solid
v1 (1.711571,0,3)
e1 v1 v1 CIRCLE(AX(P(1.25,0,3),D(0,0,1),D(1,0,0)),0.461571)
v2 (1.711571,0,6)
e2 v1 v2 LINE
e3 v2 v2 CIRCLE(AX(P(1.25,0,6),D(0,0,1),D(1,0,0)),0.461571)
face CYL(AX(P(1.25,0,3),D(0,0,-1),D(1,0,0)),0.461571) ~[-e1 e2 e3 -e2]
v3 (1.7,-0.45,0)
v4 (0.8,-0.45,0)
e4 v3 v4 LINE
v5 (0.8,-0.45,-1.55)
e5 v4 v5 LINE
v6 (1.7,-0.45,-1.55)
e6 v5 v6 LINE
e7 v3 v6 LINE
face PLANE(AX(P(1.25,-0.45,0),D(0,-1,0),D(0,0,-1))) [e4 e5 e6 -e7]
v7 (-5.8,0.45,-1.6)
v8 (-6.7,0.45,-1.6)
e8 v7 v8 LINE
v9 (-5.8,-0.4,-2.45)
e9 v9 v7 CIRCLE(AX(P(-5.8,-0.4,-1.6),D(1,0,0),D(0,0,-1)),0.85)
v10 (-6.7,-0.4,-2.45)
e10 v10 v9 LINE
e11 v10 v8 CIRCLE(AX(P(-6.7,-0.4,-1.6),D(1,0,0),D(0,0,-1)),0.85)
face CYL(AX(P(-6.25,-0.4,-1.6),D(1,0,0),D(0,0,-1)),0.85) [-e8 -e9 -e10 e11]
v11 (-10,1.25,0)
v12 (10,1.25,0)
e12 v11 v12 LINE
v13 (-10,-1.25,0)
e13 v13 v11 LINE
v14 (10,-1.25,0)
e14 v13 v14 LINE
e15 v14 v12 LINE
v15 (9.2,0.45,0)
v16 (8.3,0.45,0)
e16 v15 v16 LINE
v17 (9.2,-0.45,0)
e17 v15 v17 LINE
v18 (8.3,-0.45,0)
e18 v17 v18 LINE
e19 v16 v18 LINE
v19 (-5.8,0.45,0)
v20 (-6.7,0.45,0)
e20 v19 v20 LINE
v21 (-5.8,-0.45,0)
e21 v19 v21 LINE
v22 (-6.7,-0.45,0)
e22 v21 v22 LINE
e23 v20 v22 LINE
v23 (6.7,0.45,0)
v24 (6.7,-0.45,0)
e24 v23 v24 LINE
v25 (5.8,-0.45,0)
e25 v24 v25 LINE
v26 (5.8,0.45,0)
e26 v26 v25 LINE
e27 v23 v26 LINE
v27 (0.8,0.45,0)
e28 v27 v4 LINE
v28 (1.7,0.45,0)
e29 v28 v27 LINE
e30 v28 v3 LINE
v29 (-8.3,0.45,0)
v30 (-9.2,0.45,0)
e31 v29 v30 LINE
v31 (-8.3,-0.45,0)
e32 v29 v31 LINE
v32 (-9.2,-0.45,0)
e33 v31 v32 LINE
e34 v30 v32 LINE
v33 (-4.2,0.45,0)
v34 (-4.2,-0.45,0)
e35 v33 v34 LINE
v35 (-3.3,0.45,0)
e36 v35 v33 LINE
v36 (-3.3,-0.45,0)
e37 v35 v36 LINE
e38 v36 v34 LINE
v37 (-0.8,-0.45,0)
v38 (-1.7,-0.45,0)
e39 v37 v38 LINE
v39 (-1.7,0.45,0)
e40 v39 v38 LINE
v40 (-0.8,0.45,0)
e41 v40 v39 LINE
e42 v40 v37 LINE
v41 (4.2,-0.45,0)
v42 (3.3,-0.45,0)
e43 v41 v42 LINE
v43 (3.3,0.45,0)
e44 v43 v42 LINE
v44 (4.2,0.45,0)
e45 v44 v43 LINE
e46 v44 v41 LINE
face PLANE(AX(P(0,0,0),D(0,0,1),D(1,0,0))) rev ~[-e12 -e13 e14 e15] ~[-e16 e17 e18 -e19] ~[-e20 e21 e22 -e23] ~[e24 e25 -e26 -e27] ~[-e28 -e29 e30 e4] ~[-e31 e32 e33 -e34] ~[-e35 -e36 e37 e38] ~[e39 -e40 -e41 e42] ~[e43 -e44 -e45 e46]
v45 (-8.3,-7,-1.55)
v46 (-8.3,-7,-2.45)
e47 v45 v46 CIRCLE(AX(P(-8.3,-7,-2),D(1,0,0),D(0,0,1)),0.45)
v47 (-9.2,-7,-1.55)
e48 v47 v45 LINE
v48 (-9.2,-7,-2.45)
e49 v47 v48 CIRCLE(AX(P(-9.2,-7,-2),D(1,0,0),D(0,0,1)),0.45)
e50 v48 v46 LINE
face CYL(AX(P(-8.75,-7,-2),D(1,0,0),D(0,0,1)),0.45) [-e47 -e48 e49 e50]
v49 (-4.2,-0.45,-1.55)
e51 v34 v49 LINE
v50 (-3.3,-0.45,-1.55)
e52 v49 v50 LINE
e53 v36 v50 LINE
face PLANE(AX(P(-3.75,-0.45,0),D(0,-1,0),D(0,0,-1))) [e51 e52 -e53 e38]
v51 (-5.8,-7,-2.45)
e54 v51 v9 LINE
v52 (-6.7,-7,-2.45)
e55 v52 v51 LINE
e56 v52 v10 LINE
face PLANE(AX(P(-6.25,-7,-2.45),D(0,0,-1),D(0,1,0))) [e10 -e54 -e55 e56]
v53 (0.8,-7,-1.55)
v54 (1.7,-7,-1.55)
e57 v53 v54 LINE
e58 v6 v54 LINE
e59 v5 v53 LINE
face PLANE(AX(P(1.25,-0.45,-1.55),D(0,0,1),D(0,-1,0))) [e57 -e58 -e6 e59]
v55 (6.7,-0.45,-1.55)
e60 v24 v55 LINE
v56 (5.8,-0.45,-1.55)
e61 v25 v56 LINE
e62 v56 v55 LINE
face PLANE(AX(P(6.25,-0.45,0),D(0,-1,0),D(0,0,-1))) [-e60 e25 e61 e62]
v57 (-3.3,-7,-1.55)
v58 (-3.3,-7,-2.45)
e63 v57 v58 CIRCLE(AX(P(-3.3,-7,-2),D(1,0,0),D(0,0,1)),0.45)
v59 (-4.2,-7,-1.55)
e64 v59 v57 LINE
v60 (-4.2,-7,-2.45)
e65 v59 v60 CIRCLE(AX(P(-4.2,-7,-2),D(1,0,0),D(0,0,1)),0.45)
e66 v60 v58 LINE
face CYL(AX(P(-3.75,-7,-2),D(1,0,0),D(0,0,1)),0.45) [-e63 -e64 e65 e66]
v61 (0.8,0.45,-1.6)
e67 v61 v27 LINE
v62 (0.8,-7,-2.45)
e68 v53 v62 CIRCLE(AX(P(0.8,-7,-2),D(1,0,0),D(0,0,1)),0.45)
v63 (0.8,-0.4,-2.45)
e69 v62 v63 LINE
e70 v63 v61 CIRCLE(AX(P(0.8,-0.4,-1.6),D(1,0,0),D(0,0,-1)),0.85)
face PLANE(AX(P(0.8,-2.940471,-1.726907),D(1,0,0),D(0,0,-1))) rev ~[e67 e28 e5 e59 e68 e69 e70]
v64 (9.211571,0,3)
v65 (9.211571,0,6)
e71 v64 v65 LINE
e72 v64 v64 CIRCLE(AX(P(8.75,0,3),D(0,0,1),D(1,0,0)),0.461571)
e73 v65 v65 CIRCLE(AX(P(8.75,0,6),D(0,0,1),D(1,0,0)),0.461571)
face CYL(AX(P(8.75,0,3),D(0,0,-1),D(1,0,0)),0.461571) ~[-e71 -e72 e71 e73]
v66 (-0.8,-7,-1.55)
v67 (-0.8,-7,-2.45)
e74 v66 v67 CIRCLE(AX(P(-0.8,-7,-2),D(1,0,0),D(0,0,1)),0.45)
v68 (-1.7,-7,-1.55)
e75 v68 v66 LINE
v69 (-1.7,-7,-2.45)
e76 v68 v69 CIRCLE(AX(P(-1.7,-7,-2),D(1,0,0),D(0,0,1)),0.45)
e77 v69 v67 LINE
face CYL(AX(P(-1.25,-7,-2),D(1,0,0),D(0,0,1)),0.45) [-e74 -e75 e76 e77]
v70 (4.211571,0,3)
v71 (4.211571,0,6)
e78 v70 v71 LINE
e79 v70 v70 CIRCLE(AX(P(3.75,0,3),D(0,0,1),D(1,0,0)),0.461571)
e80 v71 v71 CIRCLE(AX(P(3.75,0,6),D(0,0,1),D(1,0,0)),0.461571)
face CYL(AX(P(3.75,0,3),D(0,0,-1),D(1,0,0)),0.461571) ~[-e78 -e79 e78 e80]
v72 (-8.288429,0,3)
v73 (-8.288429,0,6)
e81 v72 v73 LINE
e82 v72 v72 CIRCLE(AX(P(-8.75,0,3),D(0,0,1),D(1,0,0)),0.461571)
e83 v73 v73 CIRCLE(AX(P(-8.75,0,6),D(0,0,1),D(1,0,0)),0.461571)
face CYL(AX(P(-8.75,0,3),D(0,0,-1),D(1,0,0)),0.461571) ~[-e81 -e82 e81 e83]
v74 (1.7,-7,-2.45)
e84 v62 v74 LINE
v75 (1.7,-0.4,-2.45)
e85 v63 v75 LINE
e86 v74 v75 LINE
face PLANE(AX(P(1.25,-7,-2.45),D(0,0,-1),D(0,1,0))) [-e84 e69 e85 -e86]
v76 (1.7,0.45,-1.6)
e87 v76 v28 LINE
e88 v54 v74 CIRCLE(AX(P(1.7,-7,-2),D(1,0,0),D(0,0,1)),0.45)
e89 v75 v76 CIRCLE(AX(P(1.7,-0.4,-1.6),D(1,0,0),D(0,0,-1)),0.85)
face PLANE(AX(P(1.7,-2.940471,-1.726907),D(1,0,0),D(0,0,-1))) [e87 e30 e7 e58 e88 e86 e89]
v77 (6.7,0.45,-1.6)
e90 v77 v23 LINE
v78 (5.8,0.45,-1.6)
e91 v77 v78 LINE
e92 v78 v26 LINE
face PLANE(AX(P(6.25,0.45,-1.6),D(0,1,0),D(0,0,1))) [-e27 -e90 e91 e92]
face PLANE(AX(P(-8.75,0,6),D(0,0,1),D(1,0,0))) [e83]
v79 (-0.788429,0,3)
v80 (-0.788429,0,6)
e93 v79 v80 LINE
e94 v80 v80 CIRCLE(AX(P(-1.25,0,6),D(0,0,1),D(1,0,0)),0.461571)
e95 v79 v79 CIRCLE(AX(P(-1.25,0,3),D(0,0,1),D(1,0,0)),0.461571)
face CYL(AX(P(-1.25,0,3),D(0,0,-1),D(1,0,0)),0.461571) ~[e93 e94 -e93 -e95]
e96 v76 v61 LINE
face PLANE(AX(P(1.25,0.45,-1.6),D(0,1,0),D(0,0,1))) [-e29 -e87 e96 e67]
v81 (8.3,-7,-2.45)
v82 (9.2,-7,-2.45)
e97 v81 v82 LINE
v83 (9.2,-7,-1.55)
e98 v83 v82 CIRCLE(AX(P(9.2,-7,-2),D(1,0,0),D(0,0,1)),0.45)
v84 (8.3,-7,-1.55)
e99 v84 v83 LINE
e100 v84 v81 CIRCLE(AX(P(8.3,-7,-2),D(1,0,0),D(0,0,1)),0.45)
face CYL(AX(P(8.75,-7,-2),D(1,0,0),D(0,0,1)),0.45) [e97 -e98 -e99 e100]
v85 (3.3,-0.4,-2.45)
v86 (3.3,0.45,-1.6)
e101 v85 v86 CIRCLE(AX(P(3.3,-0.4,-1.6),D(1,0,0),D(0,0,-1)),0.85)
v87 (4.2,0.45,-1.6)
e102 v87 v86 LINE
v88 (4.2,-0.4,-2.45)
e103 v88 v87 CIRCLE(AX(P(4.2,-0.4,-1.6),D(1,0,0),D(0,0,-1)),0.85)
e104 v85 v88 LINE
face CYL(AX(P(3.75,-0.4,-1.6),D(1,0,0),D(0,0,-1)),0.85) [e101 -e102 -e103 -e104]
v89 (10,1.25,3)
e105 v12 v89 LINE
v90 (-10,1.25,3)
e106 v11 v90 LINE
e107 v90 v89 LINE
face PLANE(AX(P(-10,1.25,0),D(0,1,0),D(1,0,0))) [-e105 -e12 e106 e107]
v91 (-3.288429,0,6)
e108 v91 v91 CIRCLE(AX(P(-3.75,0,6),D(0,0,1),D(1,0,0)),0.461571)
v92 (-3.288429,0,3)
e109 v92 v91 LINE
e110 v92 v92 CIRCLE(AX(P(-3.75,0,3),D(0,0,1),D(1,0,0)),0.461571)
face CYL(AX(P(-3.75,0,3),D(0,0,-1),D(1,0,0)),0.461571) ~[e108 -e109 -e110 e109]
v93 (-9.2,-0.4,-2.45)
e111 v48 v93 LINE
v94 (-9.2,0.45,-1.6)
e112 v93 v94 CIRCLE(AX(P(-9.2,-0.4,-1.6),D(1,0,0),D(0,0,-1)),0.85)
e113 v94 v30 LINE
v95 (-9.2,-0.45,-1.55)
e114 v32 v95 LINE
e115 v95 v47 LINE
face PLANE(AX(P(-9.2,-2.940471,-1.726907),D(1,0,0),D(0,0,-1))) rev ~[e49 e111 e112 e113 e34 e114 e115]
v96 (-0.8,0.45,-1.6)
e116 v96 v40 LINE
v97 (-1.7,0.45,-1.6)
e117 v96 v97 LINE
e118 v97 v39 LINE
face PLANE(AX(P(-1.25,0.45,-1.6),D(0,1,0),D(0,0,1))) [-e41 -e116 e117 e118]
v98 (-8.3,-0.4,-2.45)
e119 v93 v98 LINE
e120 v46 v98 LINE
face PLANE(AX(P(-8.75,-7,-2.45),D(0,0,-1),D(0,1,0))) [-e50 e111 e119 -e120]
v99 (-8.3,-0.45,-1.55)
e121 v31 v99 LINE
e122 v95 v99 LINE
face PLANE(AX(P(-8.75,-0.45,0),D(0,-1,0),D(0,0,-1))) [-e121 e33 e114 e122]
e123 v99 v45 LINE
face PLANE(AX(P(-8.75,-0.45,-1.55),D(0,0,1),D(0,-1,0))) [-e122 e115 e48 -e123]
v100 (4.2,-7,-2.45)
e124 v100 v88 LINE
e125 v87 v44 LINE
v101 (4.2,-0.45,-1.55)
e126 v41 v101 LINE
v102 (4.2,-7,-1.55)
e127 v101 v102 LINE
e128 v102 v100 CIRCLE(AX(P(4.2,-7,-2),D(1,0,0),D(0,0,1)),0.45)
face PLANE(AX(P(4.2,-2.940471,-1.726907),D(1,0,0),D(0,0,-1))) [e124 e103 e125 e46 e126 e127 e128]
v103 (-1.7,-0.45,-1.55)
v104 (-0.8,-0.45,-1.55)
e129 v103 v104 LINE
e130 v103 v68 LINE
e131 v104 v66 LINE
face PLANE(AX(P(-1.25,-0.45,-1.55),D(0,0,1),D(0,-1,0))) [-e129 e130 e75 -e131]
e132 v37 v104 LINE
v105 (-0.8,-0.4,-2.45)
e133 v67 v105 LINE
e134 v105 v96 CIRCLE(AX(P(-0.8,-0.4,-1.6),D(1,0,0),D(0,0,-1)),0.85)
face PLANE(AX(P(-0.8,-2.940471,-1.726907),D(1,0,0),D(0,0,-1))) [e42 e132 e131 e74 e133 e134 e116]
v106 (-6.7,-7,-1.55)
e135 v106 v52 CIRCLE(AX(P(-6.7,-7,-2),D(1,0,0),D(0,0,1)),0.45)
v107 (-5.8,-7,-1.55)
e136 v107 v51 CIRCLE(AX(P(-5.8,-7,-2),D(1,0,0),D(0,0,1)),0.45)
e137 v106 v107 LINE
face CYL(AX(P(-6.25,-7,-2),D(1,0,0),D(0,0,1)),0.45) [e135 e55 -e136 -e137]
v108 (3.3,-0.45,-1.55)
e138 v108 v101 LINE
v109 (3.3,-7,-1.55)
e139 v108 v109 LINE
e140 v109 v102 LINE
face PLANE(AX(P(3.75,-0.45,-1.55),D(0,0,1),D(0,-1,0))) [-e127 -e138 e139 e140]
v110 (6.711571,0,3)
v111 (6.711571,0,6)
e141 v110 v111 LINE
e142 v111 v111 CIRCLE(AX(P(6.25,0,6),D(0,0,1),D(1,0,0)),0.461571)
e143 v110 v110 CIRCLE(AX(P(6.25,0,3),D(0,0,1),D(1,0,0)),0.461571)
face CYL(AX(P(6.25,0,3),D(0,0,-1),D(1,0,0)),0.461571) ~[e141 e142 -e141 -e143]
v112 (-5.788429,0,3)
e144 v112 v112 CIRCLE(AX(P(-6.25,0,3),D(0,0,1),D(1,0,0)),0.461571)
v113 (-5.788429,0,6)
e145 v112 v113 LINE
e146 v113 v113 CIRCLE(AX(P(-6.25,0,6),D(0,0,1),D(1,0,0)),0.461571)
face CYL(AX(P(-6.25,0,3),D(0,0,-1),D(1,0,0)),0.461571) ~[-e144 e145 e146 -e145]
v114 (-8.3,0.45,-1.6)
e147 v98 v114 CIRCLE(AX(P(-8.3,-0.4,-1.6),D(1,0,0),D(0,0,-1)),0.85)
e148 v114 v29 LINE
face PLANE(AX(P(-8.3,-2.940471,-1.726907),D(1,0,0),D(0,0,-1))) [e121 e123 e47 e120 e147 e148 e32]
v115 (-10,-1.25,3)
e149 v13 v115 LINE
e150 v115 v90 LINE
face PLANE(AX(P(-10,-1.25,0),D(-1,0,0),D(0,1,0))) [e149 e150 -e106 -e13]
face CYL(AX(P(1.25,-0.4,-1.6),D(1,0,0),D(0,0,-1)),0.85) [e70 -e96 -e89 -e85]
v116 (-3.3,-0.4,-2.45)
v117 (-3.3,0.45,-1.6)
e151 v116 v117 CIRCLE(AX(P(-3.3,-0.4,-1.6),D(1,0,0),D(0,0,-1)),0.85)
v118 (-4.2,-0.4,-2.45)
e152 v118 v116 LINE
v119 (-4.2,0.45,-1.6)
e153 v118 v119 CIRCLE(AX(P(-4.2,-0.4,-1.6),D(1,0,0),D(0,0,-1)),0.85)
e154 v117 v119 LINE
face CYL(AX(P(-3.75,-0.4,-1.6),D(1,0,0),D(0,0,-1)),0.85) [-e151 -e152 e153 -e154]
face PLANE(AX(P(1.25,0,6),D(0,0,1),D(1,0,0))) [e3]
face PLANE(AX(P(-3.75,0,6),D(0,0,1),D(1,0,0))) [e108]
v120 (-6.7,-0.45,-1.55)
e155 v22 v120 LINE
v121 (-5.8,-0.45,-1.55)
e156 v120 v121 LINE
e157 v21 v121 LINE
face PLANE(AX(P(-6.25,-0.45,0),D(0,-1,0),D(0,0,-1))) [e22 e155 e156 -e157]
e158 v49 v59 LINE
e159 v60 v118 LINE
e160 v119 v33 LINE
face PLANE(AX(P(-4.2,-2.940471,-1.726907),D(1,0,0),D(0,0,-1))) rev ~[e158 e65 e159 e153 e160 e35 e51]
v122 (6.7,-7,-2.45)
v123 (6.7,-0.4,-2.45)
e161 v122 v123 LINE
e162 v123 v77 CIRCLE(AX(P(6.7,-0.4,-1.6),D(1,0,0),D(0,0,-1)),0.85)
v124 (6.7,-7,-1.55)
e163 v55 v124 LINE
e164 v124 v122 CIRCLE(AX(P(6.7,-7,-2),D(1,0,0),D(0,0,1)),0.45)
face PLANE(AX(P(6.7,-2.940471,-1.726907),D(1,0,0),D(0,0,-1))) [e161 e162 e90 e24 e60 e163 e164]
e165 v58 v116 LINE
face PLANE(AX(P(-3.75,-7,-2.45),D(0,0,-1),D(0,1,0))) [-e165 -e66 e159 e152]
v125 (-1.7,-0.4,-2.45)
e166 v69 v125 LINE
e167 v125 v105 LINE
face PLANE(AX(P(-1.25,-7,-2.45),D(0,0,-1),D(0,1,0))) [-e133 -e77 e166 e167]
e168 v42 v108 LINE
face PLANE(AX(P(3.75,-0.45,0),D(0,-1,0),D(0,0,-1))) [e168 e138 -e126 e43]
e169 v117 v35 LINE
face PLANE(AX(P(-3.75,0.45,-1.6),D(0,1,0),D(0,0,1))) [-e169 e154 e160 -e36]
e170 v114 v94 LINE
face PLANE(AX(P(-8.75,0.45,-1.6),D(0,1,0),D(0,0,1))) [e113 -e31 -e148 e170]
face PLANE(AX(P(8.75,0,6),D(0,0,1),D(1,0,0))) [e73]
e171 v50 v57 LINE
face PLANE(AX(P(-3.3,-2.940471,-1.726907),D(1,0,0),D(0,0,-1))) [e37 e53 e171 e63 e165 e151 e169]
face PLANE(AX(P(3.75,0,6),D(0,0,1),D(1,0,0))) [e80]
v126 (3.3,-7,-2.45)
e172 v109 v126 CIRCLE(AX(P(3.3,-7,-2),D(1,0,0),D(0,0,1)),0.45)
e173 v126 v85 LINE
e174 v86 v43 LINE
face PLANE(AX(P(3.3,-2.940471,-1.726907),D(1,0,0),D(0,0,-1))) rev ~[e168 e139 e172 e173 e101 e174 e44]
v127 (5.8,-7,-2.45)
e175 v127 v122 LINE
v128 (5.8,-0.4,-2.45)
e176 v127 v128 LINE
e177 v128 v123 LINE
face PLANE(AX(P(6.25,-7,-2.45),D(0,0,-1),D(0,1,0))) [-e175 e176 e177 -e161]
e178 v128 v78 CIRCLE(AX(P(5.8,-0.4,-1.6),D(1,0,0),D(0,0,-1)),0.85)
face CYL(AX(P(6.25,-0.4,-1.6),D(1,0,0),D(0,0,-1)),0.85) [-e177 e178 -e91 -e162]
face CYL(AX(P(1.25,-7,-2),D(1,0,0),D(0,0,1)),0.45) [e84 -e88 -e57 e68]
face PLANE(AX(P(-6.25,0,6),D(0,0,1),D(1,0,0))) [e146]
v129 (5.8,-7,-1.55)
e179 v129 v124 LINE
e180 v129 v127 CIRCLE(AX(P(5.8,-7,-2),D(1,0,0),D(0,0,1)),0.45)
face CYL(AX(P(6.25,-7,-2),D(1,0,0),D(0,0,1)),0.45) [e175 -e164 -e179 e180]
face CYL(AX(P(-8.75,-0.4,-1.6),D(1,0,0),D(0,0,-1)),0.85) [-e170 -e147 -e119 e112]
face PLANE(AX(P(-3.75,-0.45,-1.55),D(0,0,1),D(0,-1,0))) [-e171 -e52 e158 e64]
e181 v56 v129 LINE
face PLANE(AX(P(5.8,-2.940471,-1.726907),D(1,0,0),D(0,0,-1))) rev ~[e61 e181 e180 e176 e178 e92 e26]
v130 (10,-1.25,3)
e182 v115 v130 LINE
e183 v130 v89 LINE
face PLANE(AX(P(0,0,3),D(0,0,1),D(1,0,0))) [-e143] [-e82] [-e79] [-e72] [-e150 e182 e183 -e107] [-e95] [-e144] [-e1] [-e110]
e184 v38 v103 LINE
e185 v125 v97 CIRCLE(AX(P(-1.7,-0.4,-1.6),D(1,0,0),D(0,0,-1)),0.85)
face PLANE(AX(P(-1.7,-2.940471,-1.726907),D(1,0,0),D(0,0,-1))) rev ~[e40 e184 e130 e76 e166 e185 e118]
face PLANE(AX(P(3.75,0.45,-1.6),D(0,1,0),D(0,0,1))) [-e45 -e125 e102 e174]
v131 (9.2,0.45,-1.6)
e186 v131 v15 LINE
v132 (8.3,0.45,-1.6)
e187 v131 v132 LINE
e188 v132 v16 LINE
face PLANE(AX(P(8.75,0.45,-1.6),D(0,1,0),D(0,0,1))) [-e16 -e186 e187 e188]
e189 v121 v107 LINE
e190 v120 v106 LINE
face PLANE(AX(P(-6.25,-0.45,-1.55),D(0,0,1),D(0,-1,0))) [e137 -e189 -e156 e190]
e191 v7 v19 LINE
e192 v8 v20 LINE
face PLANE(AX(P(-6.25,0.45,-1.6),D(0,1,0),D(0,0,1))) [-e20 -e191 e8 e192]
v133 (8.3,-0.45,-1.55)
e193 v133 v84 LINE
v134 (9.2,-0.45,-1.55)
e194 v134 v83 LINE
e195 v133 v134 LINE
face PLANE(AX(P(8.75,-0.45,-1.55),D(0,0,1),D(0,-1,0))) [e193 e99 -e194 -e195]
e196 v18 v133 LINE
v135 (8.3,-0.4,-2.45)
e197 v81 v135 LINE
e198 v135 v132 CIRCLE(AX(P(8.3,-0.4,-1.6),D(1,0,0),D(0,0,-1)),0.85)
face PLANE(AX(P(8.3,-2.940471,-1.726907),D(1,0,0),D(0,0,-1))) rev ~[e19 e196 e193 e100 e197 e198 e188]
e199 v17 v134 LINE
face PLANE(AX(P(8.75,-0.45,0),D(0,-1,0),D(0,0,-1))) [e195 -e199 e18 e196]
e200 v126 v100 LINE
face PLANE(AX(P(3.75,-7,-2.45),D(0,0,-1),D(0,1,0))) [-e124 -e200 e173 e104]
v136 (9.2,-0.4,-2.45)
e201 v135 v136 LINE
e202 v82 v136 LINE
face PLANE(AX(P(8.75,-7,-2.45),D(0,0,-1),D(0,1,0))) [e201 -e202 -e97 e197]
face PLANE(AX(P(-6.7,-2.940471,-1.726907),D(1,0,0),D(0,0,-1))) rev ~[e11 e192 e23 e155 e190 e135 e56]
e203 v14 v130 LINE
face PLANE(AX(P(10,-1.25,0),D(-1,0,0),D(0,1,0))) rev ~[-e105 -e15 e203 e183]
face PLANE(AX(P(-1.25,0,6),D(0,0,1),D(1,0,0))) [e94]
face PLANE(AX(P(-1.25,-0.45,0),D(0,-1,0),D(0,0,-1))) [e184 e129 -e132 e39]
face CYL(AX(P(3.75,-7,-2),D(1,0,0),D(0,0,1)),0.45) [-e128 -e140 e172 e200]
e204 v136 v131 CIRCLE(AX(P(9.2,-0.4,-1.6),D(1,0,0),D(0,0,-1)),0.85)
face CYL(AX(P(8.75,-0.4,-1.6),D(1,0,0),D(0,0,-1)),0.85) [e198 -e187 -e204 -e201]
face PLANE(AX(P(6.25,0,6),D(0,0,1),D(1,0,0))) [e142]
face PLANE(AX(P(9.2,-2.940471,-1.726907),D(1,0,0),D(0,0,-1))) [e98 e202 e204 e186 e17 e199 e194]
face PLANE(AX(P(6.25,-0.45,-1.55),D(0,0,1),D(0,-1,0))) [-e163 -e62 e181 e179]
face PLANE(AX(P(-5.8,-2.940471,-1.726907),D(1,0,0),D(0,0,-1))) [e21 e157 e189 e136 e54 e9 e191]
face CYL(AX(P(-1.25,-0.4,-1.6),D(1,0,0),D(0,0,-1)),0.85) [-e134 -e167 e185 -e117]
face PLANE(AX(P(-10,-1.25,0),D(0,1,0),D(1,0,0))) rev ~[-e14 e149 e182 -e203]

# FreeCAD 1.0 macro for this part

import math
import FreeCAD as App
import Part
import Sketcher

doc = App.newDocument("Part")
body = doc.addObject("PartDesign::Body", "Body")

# Sketch on XY plane
sketch1 = body.newObject("Sketcher::SketchObject", "Sketch")
sketch1.AttachmentSupport = (doc.getObject("XY_Plane"), [""])
sketch1.MapMode = "FlatFace"
sketch1.addGeometry(Part.LineSegment(App.Vector(-10, 1.25, 0), App.Vector(-10, -1.25, 0)), False)
sketch1.addGeometry(Part.LineSegment(App.Vector(-10, -1.25, 0), App.Vector(10, -1.25, 0)), False)
sketch1.addGeometry(Part.LineSegment(App.Vector(10, -1.25, 0), App.Vector(10, 1.25, 0)), False)
sketch1.addGeometry(Part.LineSegment(App.Vector(10, 1.25, 0), App.Vector(-10, 1.25, 0)), False)
sketch1.addConstraint(Sketcher.Constraint("Coincident", 0, 2, 1, 1))
sketch1.addConstraint(Sketcher.Constraint("Coincident", 1, 2, 2, 1))
sketch1.addConstraint(Sketcher.Constraint("Coincident", 2, 2, 3, 1))
sketch1.addConstraint(Sketcher.Constraint("Coincident", 3, 2, 0, 1))
sketch1.addConstraint(Sketcher.Constraint("Vertical", 0))
sketch1.addConstraint(Sketcher.Constraint("Horizontal", 1))
sketch1.addConstraint(Sketcher.Constraint("Vertical", 2))
sketch1.addConstraint(Sketcher.Constraint("Horizontal", 3))
sketch1.addConstraint(Sketcher.Constraint("Symmetric", 0, 2, 2, 2, -1, 1))
sketch1.addConstraint(Sketcher.Constraint("DistanceX", 1, 1, 1, 2, 20.0))
sketch1.addConstraint(Sketcher.Constraint("DistanceY", 0, 2, 0, 1, 2.5))
pad1 = body.newObject("PartDesign::Pad", "Pad")
pad1.Profile = sketch1
pad1.Length = 3

# Sketch on XY plane
sketch2 = body.newObject("Sketcher::SketchObject", "Sketch001")
sketch2.AttachmentSupport = (doc.getObject("XY_Plane"), [""])
sketch2.MapMode = "FlatFace"
sketch2.AttachmentOffset = App.Placement(App.Vector(0, 0, 3), App.Rotation())
sketch2.addGeometry(Part.Circle(App.Vector(-8.75, 0, 0), App.Vector(0, 0, 1), 0.461571), False)
sketch2.addConstraint(Sketcher.Constraint("PointOnObject", 0, 3, -1))
sketch2.addConstraint(Sketcher.Constraint("DistanceX", 0, 3, -1, 1, 8.75))
sketch2.addConstraint(Sketcher.Constraint("Diameter", 0, 0.923142))
pad2 = body.newObject("PartDesign::Pad", "Pad001")
pad2.Profile = sketch2
pad2.Length = 3
doc.recompute()

linearpattern = body.newObject("PartDesign::LinearPattern", "LinearPattern")
linearpattern.Originals = [pad2]
linearpattern.Direction = (doc.getObject("X_Axis"), [""])
linearpattern.Mode = "offset"
linearpattern.Offset = 2.5
linearpattern.Occurrences = 8
body.Tip = linearpattern

# Sketch on YZ plane
sketch3 = body.newObject("Sketcher::SketchObject", "Sketch002")
sketch3.AttachmentSupport = (doc.getObject("YZ_Plane"), [""])
sketch3.MapMode = "FlatFace"
sketch3.AttachmentOffset = App.Placement(App.Vector(0, 0, 8.75), App.Rotation())
sketch3.addGeometry(Part.LineSegment(App.Vector(-0.45, 0, 0), App.Vector(-0.45, -1.55, 0)), False)
sketch3.addGeometry(Part.LineSegment(App.Vector(-0.45, -1.55, 0), App.Vector(-7, -1.55, 0)), False)
sketch3.addGeometry(Part.ArcOfCircle(Part.Circle(App.Vector(-7, -2, 0), App.Vector(0, 0, 1), 0.45), math.radians(90), math.radians(270)), False)
sketch3.addGeometry(Part.LineSegment(App.Vector(-7, -2.45, 0), App.Vector(-0.4, -2.45, 0)), False)
sketch3.addGeometry(Part.ArcOfCircle(Part.Circle(App.Vector(-0.4, -1.6, 0), App.Vector(0, 0, 1), 0.85), math.radians(-90), math.radians(0)), False)
sketch3.addGeometry(Part.LineSegment(App.Vector(0.45, -1.6, 0), App.Vector(0.45, 0, 0)), False)
sketch3.addGeometry(Part.LineSegment(App.Vector(0.45, 0, 0), App.Vector(-0.45, 0, 0)), False)
sketch3.addConstraint(Sketcher.Constraint("Coincident", 0, 2, 1, 1))
sketch3.addConstraint(Sketcher.Constraint("Tangent", 1, 2, 2, 1))
sketch3.addConstraint(Sketcher.Constraint("Tangent", 2, 2, 3, 1))
sketch3.addConstraint(Sketcher.Constraint("Tangent", 3, 2, 4, 1))
sketch3.addConstraint(Sketcher.Constraint("Tangent", 4, 2, 5, 1))
sketch3.addConstraint(Sketcher.Constraint("Coincident", 5, 2, 6, 1))
sketch3.addConstraint(Sketcher.Constraint("Coincident", 6, 2, 0, 1))
sketch3.addConstraint(Sketcher.Constraint("Vertical", 0))
sketch3.addConstraint(Sketcher.Constraint("Horizontal", 1))
sketch3.addConstraint(Sketcher.Constraint("Horizontal", 3))
sketch3.addConstraint(Sketcher.Constraint("Vertical", 5))
sketch3.addConstraint(Sketcher.Constraint("Horizontal", 6))
sketch3.addConstraint(Sketcher.Constraint("Symmetric", 5, 2, 6, 2, -1, 1))
sketch3.addConstraint(Sketcher.Constraint("Radius", 2, 0.45))
sketch3.addConstraint(Sketcher.Constraint("Radius", 4, 0.85))
sketch3.addConstraint(Sketcher.Constraint("DistanceX", 3, 1, 3, 2, 6.6))
sketch3.addConstraint(Sketcher.Constraint("DistanceX", 6, 2, 6, 1, 0.9))
sketch3.addConstraint(Sketcher.Constraint("DistanceY", 5, 1, 5, 2, 1.6))
pad3 = body.newObject("PartDesign::Pad", "Pad002")
pad3.Profile = sketch3
pad3.Length = 0.9
pad3.Midplane = True
doc.recompute()

linearpattern2 = body.newObject("PartDesign::LinearPattern", "LinearPattern001")
linearpattern2.Originals = [pad3]
linearpattern2.Direction = (doc.getObject("X_Axis"), [""])
linearpattern2.Mode = "offset"
linearpattern2.Offset = 2.5
linearpattern2.Occurrences = 8
linearpattern2.Reversed = True
body.Tip = linearpattern2

doc.recompute()
